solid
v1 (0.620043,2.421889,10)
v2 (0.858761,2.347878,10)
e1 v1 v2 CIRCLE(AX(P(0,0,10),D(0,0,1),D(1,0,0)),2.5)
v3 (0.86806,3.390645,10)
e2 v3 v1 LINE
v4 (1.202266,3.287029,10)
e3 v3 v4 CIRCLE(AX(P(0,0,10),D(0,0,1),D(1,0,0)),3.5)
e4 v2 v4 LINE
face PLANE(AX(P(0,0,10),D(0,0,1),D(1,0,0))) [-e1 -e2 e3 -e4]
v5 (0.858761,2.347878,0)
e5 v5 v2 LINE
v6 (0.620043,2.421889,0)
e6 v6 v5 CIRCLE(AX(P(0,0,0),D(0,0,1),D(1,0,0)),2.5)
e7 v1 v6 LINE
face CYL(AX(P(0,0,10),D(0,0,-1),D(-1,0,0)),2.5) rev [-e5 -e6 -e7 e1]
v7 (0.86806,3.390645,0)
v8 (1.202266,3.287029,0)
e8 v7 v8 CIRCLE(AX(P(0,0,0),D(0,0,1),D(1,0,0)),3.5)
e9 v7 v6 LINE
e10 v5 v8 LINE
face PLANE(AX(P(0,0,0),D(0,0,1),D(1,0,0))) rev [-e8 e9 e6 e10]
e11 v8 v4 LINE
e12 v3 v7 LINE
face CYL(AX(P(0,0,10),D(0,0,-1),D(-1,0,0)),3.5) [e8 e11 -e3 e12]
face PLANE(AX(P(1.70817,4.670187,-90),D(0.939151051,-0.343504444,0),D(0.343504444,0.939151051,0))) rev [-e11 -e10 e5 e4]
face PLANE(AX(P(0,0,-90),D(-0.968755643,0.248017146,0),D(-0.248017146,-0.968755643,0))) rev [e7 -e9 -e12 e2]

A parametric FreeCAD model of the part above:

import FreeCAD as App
import Part
import Sketcher

V = App.Vector

doc = App.newDocument("Part")
body = doc.addObject("PartDesign::Body", "Body")

# Sketch on XY plane
sketch1 = body.newObject("Sketcher::SketchObject", "Sketch")
sketch1.AttachmentSupport = (doc.getObject("XY_Plane"), [""])
sketch1.MapMode = "FlatFace"
sketch1.addGeometry([
    Part.Circle(V(0, 0, 0), V(0, 0, 1), 3.5),
    Part.Circle(V(0, 0, 0), V(0, 0, 1), 2.5),
], False)
sketch1.addConstraint([
    Sketcher.Constraint("Coincident", 0, 3, -1, 1),
    Sketcher.Constraint("Coincident", 1, 3, -1, 1),
    Sketcher.Constraint("Diameter", 0, 7.0),
    Sketcher.Constraint("Diameter", 1, 5.0),
])
pad1 = body.newObject("PartDesign::Pad", "Pad")
pad1.Profile = sketch1
pad1.Length = 10

# Sketch on XY plane
sketch2 = body.newObject("Sketcher::SketchObject", "Sketch001")
sketch2.AttachmentSupport = (doc.getObject("XY_Plane"), [""])
sketch2.MapMode = "FlatFace"
sketch2.AttachmentOffset = App.Placement(V(0, 0, 10), App.Rotation())
sketch2.addGeometry([
    Part.LineSegment(V(1.2, 4.7, 0), V(0, 0, 0)),
    Part.LineSegment(V(0, 0, 0), V(1.7, 4.7, 0)),
    Part.LineSegment(V(1.7, 4.7, 0), V(1.2, 4.7, 0)),
], False)
sketch2.addConstraint([
    Sketcher.Constraint("Coincident", 0, 2, 1, 1),
    Sketcher.Constraint("Coincident", 1, 2, 2, 1),
    Sketcher.Constraint("Coincident", 2, 2, 0, 1),
    Sketcher.Constraint("Horizontal", 2),
    Sketcher.Constraint("Coincident", 0, 2, -1, 1),
    Sketcher.Constraint("Distance", 0, 4.82081),
    Sketcher.Constraint("DistanceX", 2, 2, 2, 1, 0.512527),
    Sketcher.Constraint("DistanceX", -1, 1, 1, 2, 1.70817),
])
pocket1 = body.newObject("PartDesign::Pocket", "Pocket")
pocket1.Profile = sketch2
pocket1.Length = 100

doc.recompute()
